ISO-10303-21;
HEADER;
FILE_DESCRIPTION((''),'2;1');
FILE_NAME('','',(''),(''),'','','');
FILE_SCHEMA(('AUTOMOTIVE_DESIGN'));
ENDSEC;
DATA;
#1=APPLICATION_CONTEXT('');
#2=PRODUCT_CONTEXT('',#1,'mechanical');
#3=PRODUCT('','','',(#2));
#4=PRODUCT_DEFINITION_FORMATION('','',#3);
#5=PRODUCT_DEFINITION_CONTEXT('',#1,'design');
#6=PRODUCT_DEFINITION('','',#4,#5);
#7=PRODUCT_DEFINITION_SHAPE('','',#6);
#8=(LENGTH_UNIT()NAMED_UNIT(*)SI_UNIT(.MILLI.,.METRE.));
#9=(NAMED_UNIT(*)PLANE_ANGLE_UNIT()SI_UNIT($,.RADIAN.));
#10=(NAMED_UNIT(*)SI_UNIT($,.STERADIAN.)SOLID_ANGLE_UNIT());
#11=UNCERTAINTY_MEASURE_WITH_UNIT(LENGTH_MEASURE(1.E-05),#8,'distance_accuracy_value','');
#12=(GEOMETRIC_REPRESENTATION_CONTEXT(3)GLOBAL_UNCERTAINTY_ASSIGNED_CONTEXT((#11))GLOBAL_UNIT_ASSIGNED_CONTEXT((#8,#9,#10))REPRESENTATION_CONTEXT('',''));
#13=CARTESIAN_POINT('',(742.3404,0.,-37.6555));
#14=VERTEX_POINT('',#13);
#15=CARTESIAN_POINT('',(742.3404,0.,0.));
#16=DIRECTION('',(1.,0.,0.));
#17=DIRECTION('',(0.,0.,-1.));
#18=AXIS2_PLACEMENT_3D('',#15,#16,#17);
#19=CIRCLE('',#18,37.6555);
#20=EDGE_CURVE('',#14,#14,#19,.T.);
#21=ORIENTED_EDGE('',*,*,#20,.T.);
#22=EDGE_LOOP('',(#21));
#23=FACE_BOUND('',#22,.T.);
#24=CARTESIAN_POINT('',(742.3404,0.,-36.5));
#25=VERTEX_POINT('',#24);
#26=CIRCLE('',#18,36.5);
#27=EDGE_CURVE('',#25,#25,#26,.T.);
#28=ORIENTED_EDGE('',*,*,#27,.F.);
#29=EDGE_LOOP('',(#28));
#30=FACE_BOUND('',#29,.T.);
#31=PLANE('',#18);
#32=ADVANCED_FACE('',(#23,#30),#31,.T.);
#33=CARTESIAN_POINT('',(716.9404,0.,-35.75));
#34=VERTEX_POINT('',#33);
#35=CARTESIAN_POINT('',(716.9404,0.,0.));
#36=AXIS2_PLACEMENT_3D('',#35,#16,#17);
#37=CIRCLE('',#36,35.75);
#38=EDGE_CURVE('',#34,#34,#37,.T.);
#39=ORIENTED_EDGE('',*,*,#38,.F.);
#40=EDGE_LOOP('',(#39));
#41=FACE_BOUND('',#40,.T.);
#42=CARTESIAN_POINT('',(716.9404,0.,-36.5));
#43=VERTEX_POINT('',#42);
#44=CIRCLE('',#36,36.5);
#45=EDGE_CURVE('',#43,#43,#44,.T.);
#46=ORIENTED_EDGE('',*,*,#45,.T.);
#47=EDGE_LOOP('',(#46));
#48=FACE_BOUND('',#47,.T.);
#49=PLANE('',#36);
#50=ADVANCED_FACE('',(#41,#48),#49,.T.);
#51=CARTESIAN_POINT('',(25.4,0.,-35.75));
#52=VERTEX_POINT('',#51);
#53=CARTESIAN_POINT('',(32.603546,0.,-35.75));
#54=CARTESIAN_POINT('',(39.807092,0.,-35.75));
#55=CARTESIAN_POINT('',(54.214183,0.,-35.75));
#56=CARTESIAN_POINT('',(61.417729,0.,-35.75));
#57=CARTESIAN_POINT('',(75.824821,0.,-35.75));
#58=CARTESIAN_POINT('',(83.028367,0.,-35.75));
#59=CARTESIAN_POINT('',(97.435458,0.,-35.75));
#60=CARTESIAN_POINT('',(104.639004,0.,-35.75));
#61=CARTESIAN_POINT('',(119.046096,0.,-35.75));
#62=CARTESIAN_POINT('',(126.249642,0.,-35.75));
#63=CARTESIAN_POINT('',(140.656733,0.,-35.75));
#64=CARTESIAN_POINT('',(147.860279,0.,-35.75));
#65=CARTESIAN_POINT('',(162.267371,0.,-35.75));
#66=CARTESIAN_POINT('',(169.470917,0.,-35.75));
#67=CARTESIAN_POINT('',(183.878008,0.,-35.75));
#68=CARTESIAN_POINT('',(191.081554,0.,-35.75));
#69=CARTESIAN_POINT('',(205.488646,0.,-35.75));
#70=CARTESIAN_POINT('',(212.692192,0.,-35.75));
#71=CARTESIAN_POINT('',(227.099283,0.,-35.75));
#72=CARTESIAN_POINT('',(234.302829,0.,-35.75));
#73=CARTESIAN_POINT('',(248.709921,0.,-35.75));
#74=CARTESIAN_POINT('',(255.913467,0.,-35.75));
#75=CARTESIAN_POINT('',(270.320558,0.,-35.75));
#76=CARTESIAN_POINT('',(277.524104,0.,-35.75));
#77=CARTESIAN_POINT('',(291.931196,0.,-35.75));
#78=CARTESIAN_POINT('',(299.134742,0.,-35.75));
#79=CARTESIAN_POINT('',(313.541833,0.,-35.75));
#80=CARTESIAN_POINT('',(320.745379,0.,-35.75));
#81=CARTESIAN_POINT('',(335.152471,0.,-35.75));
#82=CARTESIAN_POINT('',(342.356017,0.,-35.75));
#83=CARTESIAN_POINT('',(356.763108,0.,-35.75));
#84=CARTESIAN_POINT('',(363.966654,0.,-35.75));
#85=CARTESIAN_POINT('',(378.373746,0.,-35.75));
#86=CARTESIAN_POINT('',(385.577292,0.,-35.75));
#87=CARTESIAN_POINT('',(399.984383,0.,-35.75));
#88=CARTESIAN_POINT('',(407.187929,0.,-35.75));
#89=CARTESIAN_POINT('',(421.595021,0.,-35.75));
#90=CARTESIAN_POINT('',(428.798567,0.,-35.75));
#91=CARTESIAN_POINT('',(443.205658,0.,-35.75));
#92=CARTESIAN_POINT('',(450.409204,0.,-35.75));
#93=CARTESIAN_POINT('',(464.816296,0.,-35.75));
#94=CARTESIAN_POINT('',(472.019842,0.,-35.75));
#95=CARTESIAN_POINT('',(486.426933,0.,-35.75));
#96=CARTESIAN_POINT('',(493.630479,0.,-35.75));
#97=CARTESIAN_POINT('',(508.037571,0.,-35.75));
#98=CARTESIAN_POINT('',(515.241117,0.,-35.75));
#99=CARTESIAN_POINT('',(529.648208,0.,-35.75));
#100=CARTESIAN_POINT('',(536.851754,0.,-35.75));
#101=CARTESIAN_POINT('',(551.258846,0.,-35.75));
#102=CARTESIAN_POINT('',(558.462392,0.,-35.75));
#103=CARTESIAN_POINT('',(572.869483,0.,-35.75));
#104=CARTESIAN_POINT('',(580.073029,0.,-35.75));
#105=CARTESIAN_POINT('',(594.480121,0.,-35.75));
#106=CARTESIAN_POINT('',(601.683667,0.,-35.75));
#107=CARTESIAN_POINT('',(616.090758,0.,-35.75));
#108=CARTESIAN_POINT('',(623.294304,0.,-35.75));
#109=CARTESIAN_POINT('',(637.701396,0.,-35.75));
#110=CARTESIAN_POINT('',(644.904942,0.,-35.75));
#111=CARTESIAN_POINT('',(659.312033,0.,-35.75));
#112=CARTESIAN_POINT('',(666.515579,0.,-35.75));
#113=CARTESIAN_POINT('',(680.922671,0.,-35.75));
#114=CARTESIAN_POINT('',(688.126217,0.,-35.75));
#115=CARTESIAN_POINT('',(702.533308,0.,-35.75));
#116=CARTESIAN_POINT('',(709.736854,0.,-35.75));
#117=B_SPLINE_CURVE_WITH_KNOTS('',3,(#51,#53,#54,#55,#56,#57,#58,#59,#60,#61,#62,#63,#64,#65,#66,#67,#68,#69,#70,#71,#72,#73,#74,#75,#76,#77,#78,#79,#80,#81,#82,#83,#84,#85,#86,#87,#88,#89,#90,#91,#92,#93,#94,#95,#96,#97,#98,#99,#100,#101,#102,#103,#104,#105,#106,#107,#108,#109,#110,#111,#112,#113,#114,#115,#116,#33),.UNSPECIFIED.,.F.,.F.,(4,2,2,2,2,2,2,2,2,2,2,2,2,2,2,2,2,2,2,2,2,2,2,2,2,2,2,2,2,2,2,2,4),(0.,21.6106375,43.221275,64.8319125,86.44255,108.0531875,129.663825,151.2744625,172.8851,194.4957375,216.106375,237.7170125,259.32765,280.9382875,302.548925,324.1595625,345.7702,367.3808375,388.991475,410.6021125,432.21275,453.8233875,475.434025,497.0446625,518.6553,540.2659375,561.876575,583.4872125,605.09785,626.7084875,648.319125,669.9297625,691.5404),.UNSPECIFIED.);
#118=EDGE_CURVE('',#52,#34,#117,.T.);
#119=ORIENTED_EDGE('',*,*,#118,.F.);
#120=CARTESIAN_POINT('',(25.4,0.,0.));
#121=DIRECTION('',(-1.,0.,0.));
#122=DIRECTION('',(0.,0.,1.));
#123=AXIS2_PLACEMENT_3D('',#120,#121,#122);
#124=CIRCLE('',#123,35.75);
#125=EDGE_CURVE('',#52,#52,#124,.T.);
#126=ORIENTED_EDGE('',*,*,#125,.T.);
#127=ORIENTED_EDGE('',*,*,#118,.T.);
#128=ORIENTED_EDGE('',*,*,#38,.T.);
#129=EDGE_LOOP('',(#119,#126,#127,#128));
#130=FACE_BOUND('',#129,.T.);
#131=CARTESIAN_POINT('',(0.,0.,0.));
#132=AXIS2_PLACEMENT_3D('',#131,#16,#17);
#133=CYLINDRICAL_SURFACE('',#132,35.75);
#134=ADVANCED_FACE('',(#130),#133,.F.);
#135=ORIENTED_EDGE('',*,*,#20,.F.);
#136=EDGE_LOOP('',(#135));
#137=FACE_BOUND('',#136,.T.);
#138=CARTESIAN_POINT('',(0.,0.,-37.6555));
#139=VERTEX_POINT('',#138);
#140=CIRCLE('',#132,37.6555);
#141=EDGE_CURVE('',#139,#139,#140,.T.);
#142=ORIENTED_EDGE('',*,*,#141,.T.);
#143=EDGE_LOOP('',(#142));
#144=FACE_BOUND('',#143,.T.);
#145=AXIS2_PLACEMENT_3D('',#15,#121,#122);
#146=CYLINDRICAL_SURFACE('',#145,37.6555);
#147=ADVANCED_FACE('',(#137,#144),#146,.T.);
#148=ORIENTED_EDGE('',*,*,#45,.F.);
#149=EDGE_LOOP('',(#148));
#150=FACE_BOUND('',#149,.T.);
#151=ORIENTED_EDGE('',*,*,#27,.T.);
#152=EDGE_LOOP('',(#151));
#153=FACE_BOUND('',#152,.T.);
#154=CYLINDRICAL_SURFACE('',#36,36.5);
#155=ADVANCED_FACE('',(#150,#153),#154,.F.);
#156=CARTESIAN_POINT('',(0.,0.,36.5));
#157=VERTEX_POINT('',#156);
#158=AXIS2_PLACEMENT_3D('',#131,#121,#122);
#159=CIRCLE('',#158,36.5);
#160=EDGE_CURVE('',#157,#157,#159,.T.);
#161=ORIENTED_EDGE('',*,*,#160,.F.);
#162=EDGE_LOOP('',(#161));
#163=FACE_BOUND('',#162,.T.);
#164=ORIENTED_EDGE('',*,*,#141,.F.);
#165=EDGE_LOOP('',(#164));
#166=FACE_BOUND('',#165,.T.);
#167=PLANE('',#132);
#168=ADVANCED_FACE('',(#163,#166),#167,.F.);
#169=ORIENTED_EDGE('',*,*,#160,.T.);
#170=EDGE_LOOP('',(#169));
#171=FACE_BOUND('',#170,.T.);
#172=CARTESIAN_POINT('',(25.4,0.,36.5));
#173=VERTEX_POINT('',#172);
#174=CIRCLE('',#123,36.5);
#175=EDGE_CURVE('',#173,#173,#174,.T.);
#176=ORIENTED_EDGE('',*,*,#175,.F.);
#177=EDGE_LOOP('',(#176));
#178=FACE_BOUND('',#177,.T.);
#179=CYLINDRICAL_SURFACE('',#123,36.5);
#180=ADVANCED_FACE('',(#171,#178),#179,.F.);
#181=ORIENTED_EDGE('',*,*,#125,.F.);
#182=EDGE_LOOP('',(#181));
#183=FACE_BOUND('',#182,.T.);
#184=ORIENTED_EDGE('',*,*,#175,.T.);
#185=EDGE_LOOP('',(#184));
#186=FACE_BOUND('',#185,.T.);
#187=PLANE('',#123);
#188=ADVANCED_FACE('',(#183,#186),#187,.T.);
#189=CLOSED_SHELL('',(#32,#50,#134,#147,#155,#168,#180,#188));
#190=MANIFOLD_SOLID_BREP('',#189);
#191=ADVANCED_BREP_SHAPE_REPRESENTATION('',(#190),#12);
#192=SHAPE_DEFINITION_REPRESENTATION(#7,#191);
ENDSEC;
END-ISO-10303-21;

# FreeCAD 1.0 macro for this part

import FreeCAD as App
import Part
import Sketcher

V = App.Vector
Q = App.Units.Quantity

doc = App.newDocument("Part")
body = doc.addObject("PartDesign::Body", "Body")

sketch1 = body.newObject("Sketcher::SketchObject", "Sketch")
sketch1.AttachmentSupport = (doc.getObject("YZ_Plane"), [""])
sketch1.MapMode = "FlatFace"
sketch1.addGeometry(Part.Circle(V(0, 0, 0), V(0, 0, 1), 37.6555), False)
sketch1.addConstraint([
    Sketcher.Constraint("Coincident", 0, 3, -1, 1),
    Sketcher.Constraint("Diameter", 0, Q("2.965 in")),
])
pad1 = body.newObject("PartDesign::Pad", "Pad")
pad1.Profile = sketch1
pad1.Length = Q("29.226 in")

sketch2 = body.newObject("Sketcher::SketchObject", "Sketch001")
sketch2.AttachmentSupport = (doc.getObject("YZ_Plane"), [""])
sketch2.MapMode = "FlatFace"
sketch2.AttachmentOffset = App.Placement(V(0, 0, 29.226 * 25.4), App.Rotation())
sketch2.addGeometry(Part.Circle(V(0, 0, 0), V(0, 0, 1), 36.5), False)
sketch2.addConstraint([
    Sketcher.Constraint("Coincident", 0, 3, -1, 1),
    Sketcher.Constraint("Diameter", 0, 73.0),
])
pocket1 = body.newObject("PartDesign::Pocket", "Pocket")
pocket1.Profile = sketch2
pocket1.Length = Q("1 in")

sketch3 = body.newObject("Sketcher::SketchObject", "Sketch002")
sketch3.AttachmentSupport = (doc.getObject("YZ_Plane"), [""])
sketch3.MapMode = "FlatFace"
sketch3.AttachmentOffset = App.Placement(V(0, 0, 1 * 25.4), App.Rotation())
sketch3.addGeometry(Part.Circle(V(0, 0, 0), V(0, 0, 1), 36.5), False)
sketch3.addConstraint([
    Sketcher.Constraint("Coincident", 0, 3, -1, 1),
    Sketcher.Constraint("Diameter", 0, 73.0),
])
pocket2 = body.newObject("PartDesign::Pocket", "Pocket001")
pocket2.Profile = sketch3
pocket2.Length = Q("1 in")

sketch4 = body.newObject("Sketcher::SketchObject", "Sketch003")
sketch4.AttachmentSupport = (doc.getObject("YZ_Plane"), [""])
sketch4.MapMode = "FlatFace"
sketch4.AttachmentOffset = App.Placement(V(0, 0, 28.226 * 25.4), App.Rotation())
sketch4.addGeometry(Part.Circle(V(0, 0, 0), V(0, 0, 1), 35.75), False)
sketch4.addConstraint([
    Sketcher.Constraint("Coincident", 0, 3, -1, 1),
    Sketcher.Constraint("Diameter", 0, 71.5),
])
pocket3 = body.newObject("PartDesign::Pocket", "Pocket002")
pocket3.Profile = sketch4
pocket3.Type = "ThroughAll"

doc.recompute()
